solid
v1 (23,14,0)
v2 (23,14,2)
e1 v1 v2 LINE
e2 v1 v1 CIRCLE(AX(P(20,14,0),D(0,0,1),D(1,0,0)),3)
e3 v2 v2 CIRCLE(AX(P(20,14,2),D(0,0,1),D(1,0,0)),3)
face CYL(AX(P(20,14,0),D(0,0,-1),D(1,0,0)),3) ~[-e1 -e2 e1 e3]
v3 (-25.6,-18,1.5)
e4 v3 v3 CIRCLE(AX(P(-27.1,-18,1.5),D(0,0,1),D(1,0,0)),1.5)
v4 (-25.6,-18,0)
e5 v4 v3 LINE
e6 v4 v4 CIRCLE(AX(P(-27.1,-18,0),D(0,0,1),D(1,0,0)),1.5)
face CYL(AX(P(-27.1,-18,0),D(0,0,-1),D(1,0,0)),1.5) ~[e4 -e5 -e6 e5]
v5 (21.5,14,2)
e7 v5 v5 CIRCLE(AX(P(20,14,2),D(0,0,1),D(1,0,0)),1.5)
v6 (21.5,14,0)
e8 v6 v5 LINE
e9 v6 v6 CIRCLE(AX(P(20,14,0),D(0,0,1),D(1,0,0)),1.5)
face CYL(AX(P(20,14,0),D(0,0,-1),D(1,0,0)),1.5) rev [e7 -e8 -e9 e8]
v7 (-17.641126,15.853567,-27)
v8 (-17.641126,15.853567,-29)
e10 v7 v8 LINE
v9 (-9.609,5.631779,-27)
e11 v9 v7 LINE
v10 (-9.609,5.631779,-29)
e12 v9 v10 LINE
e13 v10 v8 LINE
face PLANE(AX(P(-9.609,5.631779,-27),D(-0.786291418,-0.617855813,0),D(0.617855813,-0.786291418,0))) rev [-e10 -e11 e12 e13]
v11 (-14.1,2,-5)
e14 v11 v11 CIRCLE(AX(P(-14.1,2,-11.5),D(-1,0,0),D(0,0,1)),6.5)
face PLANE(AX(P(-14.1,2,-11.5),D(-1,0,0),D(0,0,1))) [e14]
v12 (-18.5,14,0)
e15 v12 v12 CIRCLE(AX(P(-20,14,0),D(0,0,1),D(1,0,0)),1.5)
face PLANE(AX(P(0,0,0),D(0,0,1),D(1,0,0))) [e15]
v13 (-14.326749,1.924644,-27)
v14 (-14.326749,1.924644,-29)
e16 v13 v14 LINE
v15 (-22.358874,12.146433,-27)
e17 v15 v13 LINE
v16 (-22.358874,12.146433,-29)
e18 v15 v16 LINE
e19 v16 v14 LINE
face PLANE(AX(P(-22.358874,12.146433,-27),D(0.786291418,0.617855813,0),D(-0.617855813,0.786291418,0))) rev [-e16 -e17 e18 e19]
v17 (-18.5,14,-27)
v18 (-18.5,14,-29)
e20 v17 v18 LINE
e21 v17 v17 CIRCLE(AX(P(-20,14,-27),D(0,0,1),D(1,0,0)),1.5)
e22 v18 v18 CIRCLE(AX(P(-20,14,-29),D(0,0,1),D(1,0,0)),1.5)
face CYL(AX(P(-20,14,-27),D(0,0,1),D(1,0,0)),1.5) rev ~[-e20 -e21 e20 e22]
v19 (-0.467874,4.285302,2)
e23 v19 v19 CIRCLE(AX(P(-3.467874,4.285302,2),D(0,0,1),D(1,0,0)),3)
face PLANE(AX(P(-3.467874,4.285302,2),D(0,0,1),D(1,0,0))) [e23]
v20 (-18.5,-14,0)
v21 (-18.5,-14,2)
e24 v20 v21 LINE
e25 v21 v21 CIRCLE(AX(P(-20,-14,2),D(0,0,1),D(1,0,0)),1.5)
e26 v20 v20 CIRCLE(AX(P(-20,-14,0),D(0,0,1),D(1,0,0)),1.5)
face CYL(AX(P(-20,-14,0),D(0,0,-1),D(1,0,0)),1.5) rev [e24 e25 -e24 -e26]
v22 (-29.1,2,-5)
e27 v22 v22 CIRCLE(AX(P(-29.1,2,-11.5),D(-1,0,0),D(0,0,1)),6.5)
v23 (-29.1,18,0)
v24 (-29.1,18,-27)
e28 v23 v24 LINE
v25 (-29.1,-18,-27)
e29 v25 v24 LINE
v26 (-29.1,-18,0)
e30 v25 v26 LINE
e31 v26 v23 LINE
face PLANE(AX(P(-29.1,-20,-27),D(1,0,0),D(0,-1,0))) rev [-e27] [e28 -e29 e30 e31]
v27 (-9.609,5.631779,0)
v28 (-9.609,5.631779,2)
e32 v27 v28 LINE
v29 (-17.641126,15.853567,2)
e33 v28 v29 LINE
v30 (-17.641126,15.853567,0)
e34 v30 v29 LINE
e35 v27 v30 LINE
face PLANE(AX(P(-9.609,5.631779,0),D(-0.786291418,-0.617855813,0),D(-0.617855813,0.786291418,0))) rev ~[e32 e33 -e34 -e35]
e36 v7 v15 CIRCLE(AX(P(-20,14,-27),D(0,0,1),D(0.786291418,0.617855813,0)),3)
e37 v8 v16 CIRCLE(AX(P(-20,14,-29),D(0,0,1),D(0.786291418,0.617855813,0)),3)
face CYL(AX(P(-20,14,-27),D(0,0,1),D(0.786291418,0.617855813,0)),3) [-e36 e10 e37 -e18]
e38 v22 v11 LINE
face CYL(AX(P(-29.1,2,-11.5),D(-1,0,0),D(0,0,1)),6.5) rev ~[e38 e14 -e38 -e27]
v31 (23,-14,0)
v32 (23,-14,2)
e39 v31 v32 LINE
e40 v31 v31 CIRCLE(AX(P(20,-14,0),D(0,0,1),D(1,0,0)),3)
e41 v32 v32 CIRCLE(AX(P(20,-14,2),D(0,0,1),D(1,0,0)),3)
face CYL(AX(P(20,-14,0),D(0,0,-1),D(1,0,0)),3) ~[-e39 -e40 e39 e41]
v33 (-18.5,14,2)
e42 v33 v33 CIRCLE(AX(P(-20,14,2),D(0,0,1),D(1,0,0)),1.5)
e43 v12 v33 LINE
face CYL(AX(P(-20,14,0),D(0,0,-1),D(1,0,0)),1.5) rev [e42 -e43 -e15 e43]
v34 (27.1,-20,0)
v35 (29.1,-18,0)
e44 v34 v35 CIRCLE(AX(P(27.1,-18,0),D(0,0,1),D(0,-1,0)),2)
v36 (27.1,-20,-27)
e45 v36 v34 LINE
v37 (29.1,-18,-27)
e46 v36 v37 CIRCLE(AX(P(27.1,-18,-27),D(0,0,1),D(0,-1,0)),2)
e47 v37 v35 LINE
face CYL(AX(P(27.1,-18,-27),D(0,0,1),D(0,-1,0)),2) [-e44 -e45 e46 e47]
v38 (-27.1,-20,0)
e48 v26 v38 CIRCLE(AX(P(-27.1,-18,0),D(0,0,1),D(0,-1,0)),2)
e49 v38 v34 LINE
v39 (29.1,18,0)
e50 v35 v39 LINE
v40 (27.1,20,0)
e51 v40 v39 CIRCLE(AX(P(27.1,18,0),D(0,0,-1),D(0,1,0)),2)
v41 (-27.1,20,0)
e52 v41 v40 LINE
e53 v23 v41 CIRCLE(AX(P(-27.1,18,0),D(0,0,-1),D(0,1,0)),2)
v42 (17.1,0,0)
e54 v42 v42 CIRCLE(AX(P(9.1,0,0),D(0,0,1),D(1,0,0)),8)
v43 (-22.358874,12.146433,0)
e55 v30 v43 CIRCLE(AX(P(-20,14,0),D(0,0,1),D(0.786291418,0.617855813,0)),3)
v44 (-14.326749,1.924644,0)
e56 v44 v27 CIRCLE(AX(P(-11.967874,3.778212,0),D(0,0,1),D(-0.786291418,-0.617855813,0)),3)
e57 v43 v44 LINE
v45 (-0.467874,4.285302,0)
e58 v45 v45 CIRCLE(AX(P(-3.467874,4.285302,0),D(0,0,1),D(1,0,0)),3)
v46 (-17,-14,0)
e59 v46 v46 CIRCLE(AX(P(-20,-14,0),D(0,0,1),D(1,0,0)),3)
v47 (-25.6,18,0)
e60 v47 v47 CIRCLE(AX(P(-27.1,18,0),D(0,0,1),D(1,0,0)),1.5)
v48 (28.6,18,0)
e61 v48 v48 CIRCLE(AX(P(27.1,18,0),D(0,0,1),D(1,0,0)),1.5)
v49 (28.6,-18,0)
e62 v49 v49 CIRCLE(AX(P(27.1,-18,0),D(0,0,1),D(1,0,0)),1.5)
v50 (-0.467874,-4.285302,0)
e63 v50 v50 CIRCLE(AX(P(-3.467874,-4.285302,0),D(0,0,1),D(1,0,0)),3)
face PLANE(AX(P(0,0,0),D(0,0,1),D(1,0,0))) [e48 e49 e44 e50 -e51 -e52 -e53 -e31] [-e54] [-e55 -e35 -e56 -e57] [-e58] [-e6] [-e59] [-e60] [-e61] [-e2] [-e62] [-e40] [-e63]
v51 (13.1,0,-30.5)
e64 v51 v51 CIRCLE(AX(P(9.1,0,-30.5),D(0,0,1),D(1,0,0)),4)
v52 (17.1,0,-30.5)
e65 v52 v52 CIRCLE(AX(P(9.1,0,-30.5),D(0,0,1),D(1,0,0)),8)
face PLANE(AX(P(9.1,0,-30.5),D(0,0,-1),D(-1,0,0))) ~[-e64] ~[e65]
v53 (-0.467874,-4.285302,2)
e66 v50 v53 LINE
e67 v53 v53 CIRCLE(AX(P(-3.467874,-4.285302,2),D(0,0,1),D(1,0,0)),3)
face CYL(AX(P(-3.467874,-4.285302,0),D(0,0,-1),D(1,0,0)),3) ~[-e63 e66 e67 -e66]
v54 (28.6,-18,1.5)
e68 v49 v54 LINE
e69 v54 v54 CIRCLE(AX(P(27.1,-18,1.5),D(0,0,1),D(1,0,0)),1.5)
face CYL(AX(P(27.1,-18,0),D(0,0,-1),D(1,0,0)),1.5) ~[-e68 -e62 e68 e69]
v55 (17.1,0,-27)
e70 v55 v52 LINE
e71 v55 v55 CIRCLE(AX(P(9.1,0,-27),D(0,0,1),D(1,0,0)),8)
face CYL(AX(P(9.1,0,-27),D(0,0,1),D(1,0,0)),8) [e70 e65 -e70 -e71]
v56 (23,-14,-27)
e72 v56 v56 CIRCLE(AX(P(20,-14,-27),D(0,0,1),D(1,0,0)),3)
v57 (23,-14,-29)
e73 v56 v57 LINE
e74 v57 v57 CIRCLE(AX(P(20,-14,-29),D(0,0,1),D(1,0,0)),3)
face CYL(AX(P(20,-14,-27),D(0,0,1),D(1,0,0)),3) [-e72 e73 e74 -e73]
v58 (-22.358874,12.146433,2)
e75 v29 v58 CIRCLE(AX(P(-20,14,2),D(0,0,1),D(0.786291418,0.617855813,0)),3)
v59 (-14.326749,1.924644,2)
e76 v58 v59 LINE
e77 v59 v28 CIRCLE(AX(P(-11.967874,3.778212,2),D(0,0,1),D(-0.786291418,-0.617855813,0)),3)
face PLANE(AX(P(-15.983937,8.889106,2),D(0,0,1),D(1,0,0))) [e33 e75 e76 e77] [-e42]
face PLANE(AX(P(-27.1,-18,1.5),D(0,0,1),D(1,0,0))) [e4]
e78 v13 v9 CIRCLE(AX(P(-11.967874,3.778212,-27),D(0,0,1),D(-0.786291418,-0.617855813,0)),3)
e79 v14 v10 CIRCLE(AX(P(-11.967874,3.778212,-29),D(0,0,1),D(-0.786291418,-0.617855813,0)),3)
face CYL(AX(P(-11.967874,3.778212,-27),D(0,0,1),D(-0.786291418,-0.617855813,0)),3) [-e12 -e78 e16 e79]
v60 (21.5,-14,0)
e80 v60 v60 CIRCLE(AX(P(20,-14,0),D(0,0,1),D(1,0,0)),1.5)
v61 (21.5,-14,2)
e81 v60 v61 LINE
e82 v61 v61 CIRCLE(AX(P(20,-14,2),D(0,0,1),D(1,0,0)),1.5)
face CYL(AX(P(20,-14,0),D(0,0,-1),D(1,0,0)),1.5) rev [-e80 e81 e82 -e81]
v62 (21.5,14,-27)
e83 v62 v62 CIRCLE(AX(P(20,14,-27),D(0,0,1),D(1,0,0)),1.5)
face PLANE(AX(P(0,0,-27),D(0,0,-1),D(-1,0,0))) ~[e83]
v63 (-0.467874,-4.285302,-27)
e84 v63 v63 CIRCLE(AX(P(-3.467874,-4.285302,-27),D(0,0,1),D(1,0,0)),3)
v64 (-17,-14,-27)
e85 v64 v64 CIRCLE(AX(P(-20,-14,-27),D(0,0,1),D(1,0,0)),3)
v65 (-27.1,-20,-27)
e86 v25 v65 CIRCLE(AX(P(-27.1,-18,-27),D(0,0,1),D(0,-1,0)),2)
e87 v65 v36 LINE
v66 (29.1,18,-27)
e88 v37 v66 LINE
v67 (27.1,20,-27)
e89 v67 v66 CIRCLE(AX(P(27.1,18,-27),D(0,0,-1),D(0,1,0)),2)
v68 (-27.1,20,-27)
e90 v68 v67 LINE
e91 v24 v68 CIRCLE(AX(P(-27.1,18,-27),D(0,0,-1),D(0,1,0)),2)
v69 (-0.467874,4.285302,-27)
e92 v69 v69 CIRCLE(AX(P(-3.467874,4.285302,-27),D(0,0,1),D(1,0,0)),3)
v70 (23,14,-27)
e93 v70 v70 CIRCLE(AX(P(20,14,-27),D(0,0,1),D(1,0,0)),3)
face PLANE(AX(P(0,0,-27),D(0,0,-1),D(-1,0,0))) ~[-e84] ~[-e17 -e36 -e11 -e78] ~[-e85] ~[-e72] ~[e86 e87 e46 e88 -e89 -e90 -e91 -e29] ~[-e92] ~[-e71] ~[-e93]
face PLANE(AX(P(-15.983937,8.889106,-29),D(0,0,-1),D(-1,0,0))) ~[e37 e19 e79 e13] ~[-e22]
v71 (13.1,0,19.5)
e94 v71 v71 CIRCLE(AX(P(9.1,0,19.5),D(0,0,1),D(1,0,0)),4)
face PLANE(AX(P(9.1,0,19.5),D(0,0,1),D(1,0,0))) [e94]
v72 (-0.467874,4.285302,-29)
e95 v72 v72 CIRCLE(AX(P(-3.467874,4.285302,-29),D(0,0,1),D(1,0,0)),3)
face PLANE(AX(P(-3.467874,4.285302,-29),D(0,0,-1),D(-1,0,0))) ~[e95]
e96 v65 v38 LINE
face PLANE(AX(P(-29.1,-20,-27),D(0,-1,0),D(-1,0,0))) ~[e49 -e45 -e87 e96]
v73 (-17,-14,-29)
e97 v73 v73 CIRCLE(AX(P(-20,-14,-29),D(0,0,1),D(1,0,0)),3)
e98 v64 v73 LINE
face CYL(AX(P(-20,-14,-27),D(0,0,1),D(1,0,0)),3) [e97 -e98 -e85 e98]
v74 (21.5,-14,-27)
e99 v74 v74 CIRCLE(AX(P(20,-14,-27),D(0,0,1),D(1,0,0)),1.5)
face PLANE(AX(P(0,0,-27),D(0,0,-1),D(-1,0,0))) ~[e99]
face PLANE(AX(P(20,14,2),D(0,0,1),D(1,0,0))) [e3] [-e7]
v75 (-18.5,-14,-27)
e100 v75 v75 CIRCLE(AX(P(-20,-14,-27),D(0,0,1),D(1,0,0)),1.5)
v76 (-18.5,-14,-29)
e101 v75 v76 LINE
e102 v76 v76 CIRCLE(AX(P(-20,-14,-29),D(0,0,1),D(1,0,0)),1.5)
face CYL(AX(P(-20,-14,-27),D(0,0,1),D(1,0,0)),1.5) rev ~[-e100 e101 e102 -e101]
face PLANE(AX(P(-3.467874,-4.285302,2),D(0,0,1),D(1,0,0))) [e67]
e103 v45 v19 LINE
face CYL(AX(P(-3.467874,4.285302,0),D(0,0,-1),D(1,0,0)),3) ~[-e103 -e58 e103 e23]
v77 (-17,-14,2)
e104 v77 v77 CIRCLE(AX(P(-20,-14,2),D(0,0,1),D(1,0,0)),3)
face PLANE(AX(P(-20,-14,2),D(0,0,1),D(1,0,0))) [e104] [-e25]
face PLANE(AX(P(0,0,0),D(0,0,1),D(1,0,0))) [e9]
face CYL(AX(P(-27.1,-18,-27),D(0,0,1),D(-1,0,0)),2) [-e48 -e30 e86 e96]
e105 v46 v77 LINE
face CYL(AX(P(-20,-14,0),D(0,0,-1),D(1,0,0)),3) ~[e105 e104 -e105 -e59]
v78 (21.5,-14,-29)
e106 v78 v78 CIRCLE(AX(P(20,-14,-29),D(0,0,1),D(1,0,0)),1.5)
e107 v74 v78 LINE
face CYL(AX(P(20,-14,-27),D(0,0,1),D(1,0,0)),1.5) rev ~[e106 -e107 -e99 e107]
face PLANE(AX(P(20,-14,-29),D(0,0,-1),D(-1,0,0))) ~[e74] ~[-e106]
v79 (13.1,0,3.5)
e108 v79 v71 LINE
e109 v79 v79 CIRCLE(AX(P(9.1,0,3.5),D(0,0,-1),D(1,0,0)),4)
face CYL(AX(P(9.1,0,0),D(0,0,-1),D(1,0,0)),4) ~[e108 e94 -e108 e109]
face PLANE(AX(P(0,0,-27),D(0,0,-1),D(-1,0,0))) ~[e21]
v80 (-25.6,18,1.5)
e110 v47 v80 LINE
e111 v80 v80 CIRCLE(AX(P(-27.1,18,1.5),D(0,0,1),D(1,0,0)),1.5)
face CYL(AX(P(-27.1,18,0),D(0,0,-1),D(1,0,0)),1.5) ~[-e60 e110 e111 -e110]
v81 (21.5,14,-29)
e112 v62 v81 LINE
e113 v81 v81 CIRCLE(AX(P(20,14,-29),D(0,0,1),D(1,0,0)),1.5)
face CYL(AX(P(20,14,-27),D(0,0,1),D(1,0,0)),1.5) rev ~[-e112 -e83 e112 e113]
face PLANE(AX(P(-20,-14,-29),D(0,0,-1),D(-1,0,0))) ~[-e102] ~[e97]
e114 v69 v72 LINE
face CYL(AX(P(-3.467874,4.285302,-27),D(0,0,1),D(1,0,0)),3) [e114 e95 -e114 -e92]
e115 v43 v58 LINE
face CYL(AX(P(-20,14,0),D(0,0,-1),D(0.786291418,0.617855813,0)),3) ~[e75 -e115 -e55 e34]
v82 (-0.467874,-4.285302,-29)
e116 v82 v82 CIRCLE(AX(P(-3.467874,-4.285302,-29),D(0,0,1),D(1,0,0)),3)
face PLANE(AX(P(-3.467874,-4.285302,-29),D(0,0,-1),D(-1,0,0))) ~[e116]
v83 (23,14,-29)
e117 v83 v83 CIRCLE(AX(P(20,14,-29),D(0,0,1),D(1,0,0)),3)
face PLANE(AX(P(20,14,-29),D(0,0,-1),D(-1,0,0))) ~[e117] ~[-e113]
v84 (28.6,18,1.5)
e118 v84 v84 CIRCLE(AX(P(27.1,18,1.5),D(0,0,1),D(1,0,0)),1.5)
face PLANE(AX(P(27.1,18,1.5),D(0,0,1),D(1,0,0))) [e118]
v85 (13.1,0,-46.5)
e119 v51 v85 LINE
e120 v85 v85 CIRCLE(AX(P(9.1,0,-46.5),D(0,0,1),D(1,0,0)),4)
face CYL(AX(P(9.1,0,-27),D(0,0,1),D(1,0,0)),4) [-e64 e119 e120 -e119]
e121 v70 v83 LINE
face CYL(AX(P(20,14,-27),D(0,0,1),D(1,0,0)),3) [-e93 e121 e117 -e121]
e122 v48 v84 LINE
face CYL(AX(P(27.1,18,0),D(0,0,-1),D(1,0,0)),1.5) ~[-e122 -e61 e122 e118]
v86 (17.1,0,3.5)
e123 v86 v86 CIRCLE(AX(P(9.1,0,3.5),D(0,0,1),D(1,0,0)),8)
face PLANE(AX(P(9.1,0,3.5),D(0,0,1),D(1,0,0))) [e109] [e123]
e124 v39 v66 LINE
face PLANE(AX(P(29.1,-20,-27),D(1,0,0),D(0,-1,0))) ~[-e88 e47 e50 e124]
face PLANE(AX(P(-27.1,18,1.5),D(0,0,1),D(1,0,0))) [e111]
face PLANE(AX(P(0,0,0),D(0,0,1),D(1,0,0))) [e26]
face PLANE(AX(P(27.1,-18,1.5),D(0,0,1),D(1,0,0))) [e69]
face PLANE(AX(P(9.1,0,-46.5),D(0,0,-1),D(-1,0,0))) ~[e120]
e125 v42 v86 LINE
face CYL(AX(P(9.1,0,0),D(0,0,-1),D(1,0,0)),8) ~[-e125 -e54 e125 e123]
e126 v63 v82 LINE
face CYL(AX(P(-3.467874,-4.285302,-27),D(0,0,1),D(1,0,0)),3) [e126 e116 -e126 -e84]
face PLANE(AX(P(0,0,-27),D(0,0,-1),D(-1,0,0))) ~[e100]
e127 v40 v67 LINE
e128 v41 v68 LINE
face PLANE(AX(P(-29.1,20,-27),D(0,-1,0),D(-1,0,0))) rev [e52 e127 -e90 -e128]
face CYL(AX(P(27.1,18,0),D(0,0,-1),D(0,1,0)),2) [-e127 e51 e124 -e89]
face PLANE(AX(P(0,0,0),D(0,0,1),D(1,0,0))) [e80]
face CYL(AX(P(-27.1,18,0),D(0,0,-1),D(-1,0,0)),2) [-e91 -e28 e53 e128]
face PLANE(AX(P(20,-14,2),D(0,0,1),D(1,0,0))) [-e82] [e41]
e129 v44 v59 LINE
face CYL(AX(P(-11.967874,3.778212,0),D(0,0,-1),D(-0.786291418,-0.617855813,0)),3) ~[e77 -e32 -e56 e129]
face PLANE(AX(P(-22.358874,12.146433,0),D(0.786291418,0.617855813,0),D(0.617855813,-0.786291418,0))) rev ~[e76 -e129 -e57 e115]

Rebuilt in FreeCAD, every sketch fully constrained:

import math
import FreeCAD as App
import Part
import Sketcher

V = App.Vector
Q = App.Units.Quantity


def edges_at(feature, points):
    """Names of the edges that pass closest to the given points."""
    edges = feature.Shape.Edges
    near = lambda p: min(range(len(edges)), key=lambda i: edges[i].distToShape(Part.Vertex(*p))[0])
    return sorted({f"Edge{near(p) + 1}" for p in points})


def add_polygon(sketch, points):
    """Adds a closed chain of lines whose ends are joined by coincident constraints."""
    first, n = sketch.GeometryCount, len(points)
    for a, b in zip(points, points[1:] + points[:1]):
        sketch.addGeometry(Part.LineSegment(App.Vector(*a, 0), App.Vector(*b, 0)), False)
    for i in range(n):
        sketch.addConstraint(Sketcher.Constraint("Coincident", first + i, 2, first + (i + 1) % n, 1))

doc = App.newDocument("Part")
body = doc.addObject("PartDesign::Body", "Body")

# Sketch on XY plane
sketch1 = body.newObject("Sketcher::SketchObject", "Sketch")
sketch1.AttachmentSupport = (doc.getObject("XY_Plane"), [""])
sketch1.MapMode = "FlatFace"
add_polygon(sketch1, [(-29, 20), (-29, -20), (29, -20), (29, 20)])  # lines 0-3
sketch1.addConstraint([
    Sketcher.Constraint("Vertical", 0),
    Sketcher.Constraint("Horizontal", 1),
    Sketcher.Constraint("Vertical", 2),
    Sketcher.Constraint("Horizontal", 3),
    Sketcher.Constraint("Symmetric", 0, 2, 2, 2, -1, 1),
    Sketcher.Constraint("DistanceY", 0, 2, 0, 1, Q("40 mm")),
    Sketcher.Constraint("DistanceX", 1, 1, 1, 2, Q("58.2 mm")),
])
pad1 = body.newObject("PartDesign::Pad", "Pad")
pad1.Profile = sketch1
pad1.Length = 13.5
pad1.Reversed = True

# Sketch on XY plane
sketch2 = body.newObject("Sketcher::SketchObject", "Sketch001")
sketch2.AttachmentSupport = (doc.getObject("XY_Plane"), [""])
sketch2.MapMode = "FlatFace"
sketch2.addGeometry(Part.Circle(V(9, 0, 0), V(0, 0, 1), 8), False)
sketch2.addConstraint([
    Sketcher.Constraint("PointOnObject", 0, 3, -1),
    Sketcher.Constraint("Diameter", 0, Q("16 mm")),
    Sketcher.Constraint("DistanceX", -1, 1, 0, 3, Q("9.1 mm")),
])
pad2 = body.newObject("PartDesign::Pad", "Pad001")
pad2.Profile = sketch2
pad2.Length = 3.5

# Sketch on XY plane
sketch3 = body.newObject("Sketcher::SketchObject", "Sketch002")
sketch3.AttachmentSupport = (doc.getObject("XY_Plane"), [""])
sketch3.MapMode = "FlatFace"
sketch3.addGeometry(Part.Circle(V(9.1, 0, 0), V(0, 0, 1), 4), False)
sketch3.addConstraint([
    Sketcher.Constraint("PointOnObject", 0, 3, -1),
    Sketcher.Constraint("Diameter", 0, Q("8 mm")),
    Sketcher.Constraint("DistanceX", -1, 1, 0, 3, Q("9.1 mm")),
])
pad3 = body.newObject("PartDesign::Pad", "Pad002")
pad3.Profile = sketch3
pad3.Length = 19.5

# Sketch on XY plane
sketch4 = body.newObject("Sketcher::SketchObject", "Sketch003")
sketch4.AttachmentSupport = (doc.getObject("XY_Plane"), [""])
sketch4.MapMode = "FlatFace"
sketch4.addGeometry([
    Part.LineSegment(V(-9.6, 5.6, 0), V(-17.6, 15.9, 0)),  # 0
    Part.ArcOfCircle(Part.Circle(V(-20, 14, 0), V(0, 0, 1), 3), math.radians(38), math.radians(218)),  # 1
    Part.LineSegment(V(-22.4, 12.1, 0), V(-14.3, 1.9, 0)),  # 2
    Part.ArcOfCircle(Part.Circle(V(-12, 3.8, 0), V(0, 0, 1), 3), math.radians(-142), math.radians(38)),  # 3
    Part.Circle(V(-20, 14, 0), V(0, 0, 1), 1.5),  # 4
    Part.Circle(V(20, 14, 0), V(0, 0, 1), 3),  # 5
    Part.Circle(V(20, 14, 0), V(0, 0, 1), 1.5),  # 6
    Part.Circle(V(20, -14, 0), V(0, 0, 1), 3),  # 7
    Part.Circle(V(20, -14, 0), V(0, 0, 1), 1.5),  # 8
    Part.Circle(V(-3.5, 4.3, 0), V(0, 0, 1), 3),  # 9
    Part.Circle(V(-20, -14, 0), V(0, 0, 1), 3),  # 10
    Part.Circle(V(-20, -14, 0), V(0, 0, 1), 1.5),  # 11
    Part.Circle(V(-3.5, -4.3, 0), V(0, 0, 1), 3),  # 12
], False)
sketch4.addConstraint([
    Sketcher.Constraint("Tangent", 0, 2, 1, 1),
    Sketcher.Constraint("Tangent", 1, 2, 2, 1),
    Sketcher.Constraint("Tangent", 2, 2, 3, 1),
    Sketcher.Constraint("Tangent", 3, 2, 0, 1),
    Sketcher.Constraint("Coincident", 4, 3, 1, 3),
    Sketcher.Constraint("Coincident", 6, 3, 5, 3),
    Sketcher.Constraint("Coincident", 8, 3, 7, 3),
    Sketcher.Constraint("Coincident", 11, 3, 10, 3),
    Sketcher.Constraint("Equal", 1, 3),
    Sketcher.Constraint("Equal", 3, 5),
    Sketcher.Constraint("Equal", 4, 6),
    Sketcher.Constraint("Equal", 5, 7),
    Sketcher.Constraint("Equal", 6, 8),
    Sketcher.Constraint("Equal", 7, 9),
    Sketcher.Constraint("Equal", 9, 10),
    Sketcher.Constraint("Equal", 8, 11),
    Sketcher.Constraint("Equal", 10, 12),
    Sketcher.Constraint("Symmetric", 1, 3, 7, 3, -1, 1),
    Sketcher.Constraint("Symmetric", 5, 3, 10, 3, -1, 1),
    Sketcher.Constraint("Symmetric", 1, 3, 5, 3, -2),
    Sketcher.Constraint("Symmetric", 9, 3, 12, 3, -1),
    Sketcher.Constraint("Diameter", 4, Q("3 mm")),
    Sketcher.Constraint("Diameter", 5, Q("6 mm")),
    Sketcher.Constraint("Distance", 0, Q("13 mm")),
    Sketcher.Constraint("DistanceX", 1, 3, -1, 1, Q("20 mm")),
    Sketcher.Constraint("DistanceY", -1, 1, 1, 3, Q("14 mm")),
    Sketcher.Constraint("DistanceX", 3, 3, 9, 3, Q("8.5 mm")),
    Sketcher.Constraint("DistanceX", 3, 2, -1, 1, Q("9.609 mm")),
    Sketcher.Constraint("DistanceY", 3, 3, 9, 3, Q("0.507091 mm")),
])
pad4 = body.newObject("PartDesign::Pad", "Pad003")
pad4.Profile = sketch4
pad4.Length = 2
doc.recompute()

datumplane = body.newObject("PartDesign::Plane", "DatumPlane")
datumplane.AttachmentSupport = (doc.getObject("XY_Plane"), [""])
datumplane.MapMode = "FlatFace"
datumplane.AttachmentOffset = App.Placement(V(0, 0, -13.5), App.Rotation())
mirrored = body.newObject("PartDesign::Mirrored", "Mirrored")
mirrored.Originals = [pad1, pad2, pad3, pad4]
mirrored.MirrorPlane = (datumplane, [""])
body.Tip = mirrored

# Sketch on XY plane
sketch5 = body.newObject("Sketcher::SketchObject", "Sketch004")
sketch5.AttachmentSupport = (doc.getObject("XY_Plane"), [""])
sketch5.MapMode = "FlatFace"
sketch5.addGeometry([
    Part.Circle(V(27.1, 18, 0), V(0, 0, 1), 1.5),
    Part.Circle(V(-27.1, 18, 0), V(0, 0, 1), 1.5),
    Part.Circle(V(27.1, -18, 0), V(0, 0, 1), 1.5),
    Part.Circle(V(-27.1, -18, 0), V(0, 0, 1), 1.5),
], False)
sketch5.addConstraint([
    Sketcher.Constraint("Equal", 0, 1),
    Sketcher.Constraint("Equal", 1, 2),
    Sketcher.Constraint("Equal", 2, 3),
    Sketcher.Constraint("Symmetric", 1, 3, 2, 3, -1, 1),
    Sketcher.Constraint("Symmetric", 0, 3, 3, 3, -1, 1),
    Sketcher.Constraint("Symmetric", 0, 3, 1, 3, -2),
    Sketcher.Constraint("Diameter", 0, Q("3 mm")),
    Sketcher.Constraint("DistanceY", -1, 1, 0, 3, Q("18 mm")),
    Sketcher.Constraint("DistanceX", -1, 1, 0, 3, Q("27.1 mm")),
])
pad5 = body.newObject("PartDesign::Pad", "Pad004")
pad5.Profile = sketch5
pad5.Length = 1.5
doc.recompute()

fillet = body.newObject("PartDesign::Fillet", "Fillet")
fillet.Base = (pad5, edges_at(pad5, [
    (29.1, -20, -13.5),
    (-29.1, -20, -13.5),
    (-29.1, 20, -13.5),
    (29.1, 20, -13.5),
]))
fillet.Radius = 2

# Sketch on YZ plane
sketch6 = body.newObject("Sketcher::SketchObject", "Sketch005")
sketch6.AttachmentSupport = (doc.getObject("YZ_Plane"), [""])
sketch6.MapMode = "FlatFace"
sketch6.AttachmentOffset = App.Placement(V(0, 0, -29.1), App.Rotation())
sketch6.addGeometry(Part.Circle(V(2, -12, 0), V(0, 0, 1), 6), False)
sketch6.addConstraint([
    Sketcher.Constraint("Diameter", 0, Q("13 mm")),
    Sketcher.Constraint("DistanceX", -1, 1, 0, 3, Q("2 mm")),
    Sketcher.Constraint("DistanceY", 0, 3, -1, 1, Q("11.5 mm")),
])
pocket1 = body.newObject("PartDesign::Pocket", "Pocket")
pocket1.Profile = sketch6
pocket1.Length = 15
pocket1.Reversed = True

doc.recompute()
